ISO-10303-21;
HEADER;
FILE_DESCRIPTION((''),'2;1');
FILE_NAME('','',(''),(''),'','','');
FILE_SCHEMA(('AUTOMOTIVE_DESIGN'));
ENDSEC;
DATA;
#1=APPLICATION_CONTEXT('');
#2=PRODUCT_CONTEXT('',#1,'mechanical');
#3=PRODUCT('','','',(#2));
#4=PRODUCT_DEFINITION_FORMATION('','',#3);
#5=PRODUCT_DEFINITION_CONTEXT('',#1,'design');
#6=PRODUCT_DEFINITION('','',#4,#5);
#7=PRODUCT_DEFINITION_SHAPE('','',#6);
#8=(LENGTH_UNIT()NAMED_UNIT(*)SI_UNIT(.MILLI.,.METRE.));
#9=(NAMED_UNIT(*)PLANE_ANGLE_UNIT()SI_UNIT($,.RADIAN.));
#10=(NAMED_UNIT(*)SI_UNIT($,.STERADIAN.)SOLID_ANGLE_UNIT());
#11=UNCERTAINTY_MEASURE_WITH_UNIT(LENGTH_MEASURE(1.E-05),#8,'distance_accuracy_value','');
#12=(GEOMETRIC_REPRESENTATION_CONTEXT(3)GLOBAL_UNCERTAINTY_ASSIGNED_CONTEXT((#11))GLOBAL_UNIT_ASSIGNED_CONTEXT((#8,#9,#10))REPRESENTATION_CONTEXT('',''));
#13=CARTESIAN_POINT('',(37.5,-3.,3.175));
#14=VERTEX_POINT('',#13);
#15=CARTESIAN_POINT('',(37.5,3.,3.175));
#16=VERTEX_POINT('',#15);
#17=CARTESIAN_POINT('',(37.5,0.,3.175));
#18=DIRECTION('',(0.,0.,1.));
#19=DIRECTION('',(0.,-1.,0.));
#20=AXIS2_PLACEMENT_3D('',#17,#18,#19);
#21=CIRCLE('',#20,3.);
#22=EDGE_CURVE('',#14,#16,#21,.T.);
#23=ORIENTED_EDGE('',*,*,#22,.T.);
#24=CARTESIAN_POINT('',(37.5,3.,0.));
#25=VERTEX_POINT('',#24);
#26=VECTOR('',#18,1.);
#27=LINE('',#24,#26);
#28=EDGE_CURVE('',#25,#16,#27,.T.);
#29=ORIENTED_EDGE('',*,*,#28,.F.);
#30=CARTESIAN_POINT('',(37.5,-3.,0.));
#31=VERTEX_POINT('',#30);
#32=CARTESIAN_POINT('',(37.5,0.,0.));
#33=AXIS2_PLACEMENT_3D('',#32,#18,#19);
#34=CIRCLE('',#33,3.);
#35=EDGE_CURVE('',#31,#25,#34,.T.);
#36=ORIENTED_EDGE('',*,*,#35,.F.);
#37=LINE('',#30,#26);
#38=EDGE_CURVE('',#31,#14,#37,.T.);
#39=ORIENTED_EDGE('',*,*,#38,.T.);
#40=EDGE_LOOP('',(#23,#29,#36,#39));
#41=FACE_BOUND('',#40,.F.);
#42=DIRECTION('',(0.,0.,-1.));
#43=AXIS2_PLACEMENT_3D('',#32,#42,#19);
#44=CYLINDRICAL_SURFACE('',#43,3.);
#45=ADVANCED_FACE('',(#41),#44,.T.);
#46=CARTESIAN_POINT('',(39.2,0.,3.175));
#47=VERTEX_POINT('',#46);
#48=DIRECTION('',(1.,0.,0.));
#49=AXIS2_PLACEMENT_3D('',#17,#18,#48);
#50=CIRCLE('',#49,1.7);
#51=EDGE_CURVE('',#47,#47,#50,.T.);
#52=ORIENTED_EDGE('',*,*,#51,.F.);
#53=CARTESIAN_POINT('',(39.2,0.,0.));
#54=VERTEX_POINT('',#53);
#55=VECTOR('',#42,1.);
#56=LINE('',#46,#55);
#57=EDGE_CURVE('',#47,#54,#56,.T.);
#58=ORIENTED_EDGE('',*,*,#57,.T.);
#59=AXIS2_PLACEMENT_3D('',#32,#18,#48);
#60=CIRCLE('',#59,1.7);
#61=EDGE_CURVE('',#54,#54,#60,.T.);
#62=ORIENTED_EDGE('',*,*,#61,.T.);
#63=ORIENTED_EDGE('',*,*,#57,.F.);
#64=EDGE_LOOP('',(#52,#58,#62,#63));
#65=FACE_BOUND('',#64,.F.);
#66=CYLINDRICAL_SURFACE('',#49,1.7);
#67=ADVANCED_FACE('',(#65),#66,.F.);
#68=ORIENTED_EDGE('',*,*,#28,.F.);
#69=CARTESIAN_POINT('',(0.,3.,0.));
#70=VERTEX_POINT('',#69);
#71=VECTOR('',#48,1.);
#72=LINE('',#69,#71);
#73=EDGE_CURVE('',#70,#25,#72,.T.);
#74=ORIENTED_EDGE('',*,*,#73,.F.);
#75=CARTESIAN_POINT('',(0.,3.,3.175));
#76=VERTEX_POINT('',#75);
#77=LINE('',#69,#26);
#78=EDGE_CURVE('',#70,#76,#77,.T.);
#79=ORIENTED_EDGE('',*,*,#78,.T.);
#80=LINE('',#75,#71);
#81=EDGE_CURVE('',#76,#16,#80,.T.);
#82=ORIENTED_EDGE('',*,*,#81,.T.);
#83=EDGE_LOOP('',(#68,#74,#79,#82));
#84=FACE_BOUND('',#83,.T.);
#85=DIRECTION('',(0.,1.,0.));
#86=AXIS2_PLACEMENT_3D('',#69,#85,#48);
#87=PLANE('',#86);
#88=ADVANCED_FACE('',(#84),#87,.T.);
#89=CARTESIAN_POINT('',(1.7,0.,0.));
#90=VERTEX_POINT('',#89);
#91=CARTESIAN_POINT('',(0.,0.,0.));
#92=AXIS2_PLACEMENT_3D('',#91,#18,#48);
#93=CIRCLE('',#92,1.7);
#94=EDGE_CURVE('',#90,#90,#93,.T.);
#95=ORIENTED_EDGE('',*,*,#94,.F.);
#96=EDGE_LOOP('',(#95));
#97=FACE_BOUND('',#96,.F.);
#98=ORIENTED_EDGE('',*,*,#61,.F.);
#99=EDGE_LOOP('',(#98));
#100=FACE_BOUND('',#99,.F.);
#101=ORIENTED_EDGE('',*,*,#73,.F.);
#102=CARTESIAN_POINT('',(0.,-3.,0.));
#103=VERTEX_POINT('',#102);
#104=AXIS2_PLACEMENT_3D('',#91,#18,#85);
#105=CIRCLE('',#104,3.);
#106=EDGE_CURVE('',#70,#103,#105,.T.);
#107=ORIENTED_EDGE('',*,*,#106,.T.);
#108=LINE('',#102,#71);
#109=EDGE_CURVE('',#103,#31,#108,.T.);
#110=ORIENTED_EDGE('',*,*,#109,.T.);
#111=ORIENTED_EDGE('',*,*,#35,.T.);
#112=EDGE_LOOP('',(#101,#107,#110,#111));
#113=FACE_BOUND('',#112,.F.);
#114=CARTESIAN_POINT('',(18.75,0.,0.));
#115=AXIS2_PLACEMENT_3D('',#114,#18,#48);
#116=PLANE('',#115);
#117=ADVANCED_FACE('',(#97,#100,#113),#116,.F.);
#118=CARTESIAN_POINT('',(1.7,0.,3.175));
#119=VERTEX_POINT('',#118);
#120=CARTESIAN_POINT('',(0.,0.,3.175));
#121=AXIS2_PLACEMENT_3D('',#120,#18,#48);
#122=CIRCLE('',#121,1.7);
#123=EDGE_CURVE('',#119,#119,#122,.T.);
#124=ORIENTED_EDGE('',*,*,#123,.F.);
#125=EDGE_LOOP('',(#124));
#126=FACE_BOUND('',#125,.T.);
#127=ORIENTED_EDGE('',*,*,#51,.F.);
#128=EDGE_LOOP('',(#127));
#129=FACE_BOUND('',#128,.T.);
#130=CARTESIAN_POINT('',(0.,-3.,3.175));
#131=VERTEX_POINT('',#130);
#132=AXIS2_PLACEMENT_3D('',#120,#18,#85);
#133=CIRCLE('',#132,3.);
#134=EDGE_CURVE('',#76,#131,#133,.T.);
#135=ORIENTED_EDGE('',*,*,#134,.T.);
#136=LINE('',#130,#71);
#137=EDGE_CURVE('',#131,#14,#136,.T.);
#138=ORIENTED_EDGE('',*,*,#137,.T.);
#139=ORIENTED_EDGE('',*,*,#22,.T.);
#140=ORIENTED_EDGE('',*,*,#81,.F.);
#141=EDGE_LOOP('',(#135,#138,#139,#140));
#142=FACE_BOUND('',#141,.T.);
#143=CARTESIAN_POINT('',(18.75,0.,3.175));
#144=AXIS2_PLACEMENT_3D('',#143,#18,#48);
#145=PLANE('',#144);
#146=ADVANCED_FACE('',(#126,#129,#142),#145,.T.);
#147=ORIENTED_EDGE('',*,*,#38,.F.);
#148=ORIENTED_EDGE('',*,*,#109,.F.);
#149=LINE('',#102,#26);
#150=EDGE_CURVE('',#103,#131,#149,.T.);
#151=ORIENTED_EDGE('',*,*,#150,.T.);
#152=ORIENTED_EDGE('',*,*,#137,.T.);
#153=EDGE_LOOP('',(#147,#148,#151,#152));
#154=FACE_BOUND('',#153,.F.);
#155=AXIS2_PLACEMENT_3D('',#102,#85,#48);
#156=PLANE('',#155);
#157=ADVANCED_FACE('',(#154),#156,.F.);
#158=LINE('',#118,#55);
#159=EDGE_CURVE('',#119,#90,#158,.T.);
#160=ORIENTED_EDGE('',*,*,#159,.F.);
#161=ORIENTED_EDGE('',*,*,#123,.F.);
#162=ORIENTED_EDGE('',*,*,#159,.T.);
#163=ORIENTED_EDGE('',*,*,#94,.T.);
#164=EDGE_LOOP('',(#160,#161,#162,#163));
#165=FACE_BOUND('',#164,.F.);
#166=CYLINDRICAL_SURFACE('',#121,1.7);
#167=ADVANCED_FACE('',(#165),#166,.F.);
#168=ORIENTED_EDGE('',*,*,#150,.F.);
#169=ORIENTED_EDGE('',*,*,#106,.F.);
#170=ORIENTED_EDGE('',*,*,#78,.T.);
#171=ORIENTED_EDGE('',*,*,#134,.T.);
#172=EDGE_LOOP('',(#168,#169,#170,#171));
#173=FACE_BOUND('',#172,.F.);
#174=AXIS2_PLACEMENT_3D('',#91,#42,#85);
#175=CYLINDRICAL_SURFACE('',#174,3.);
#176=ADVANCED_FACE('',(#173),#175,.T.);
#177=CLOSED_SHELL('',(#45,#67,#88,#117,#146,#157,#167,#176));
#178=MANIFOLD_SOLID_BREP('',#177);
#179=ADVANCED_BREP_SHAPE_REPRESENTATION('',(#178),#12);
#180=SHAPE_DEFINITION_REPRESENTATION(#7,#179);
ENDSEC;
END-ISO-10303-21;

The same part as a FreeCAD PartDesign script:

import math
import FreeCAD as App
import Part
import Sketcher
from FreeCAD import Vector
Q = App.Units.Quantity

doc = App.newDocument("Part")
params = doc.addObject("Spreadsheet::Sheet", "Params")
for row, (alias, value) in enumerate([
    ("sketch1_radius", "3 mm"),
    ("sketch1_width", "37.5 mm"),
    ("pad1_length", "3.175 mm"),
    ("sketch2_diameter", "3.4 mm"),
], start=1):
    params.set(f"A{row}", alias)
    params.set(f"B{row}", "=" + value)
    params.setAlias(f"B{row}", alias)

body = doc.addObject("PartDesign::Body", "Body")

sketch1 = body.newObject("Sketcher::SketchObject", "Sketch")
sketch1.AttachmentSupport = (doc.getObject("XY_Plane"), [""])
sketch1.MapMode = "FlatFace"
sketch1.addGeometry(Part.ArcOfCircle(Part.Circle(Vector(0, 0, 0), Vector(0, 0, 1), 3), math.radians(90), math.radians(270)), False)
sketch1.addGeometry(Part.LineSegment(Vector(0, -3, 0), Vector(37.5, -3, 0)), False)
sketch1.addGeometry(Part.ArcOfCircle(Part.Circle(Vector(37.5, 0, 0), Vector(0, 0, 1), 3), math.radians(-90), math.radians(90)), False)
sketch1.addGeometry(Part.LineSegment(Vector(37.5, 3, 0), Vector(0, 3, 0)), False)
sketch1.addConstraint(Sketcher.Constraint("Tangent", 0, 2, 1, 1))
sketch1.addConstraint(Sketcher.Constraint("Tangent", 1, 2, 2, 1))
sketch1.addConstraint(Sketcher.Constraint("Tangent", 2, 2, 3, 1))
sketch1.addConstraint(Sketcher.Constraint("Tangent", 3, 2, 0, 1))
sketch1.addConstraint(Sketcher.Constraint("Horizontal", 1))
sketch1.addConstraint(Sketcher.Constraint("Horizontal", 3))
sketch1.addConstraint(Sketcher.Constraint("Coincident", 0, 3, -1, 1))
sketch1.addConstraint(Sketcher.Constraint("Radius", 0, Q("3 mm")))
sketch1.addConstraint(Sketcher.Constraint("DistanceX", 1, 1, 1, 2, Q("37.5 mm")))
sketch1.setExpression("Constraints[7]", "Params.sketch1_radius")
sketch1.setExpression("Constraints[8]", "Params.sketch1_width")
pad1 = body.newObject("PartDesign::Pad", "Pad")
pad1.Profile = sketch1
pad1.setExpression("Length", "Params.pad1_length")

sketch2 = body.newObject("Sketcher::SketchObject", "Sketch001")
sketch2.AttachmentSupport = (doc.getObject("XY_Plane"), [""])
sketch2.MapMode = "FlatFace"
sketch2.AttachmentOffset = App.Placement(Vector(0, 0, 3.175), App.Rotation())
sketch2.addGeometry(Part.Circle(Vector(0, 0, 0), Vector(0, 0, 1), 1.7), False)
sketch2.addGeometry(Part.Circle(Vector(37.5, 0, 0), Vector(0, 0, 1), 1.7), False)
sketch2.addConstraint(Sketcher.Constraint("Coincident", 0, 3, -1, 1))
sketch2.addConstraint(Sketcher.Constraint("Equal", 0, 1))
sketch2.addConstraint(Sketcher.Constraint("PointOnObject", 1, 3, -1))
sketch2.addConstraint(Sketcher.Constraint("Diameter", 0, Q("3.4 mm")))
sketch2.addConstraint(Sketcher.Constraint("DistanceX", -1, 1, 1, 3, Q("37.5 mm")))
sketch2.setExpression("Constraints[3]", "Params.sketch2_diameter")
pocket1 = body.newObject("PartDesign::Pocket", "Pocket")
pocket1.Profile = sketch2
pocket1.Type = "ThroughAll"

doc.recompute()
